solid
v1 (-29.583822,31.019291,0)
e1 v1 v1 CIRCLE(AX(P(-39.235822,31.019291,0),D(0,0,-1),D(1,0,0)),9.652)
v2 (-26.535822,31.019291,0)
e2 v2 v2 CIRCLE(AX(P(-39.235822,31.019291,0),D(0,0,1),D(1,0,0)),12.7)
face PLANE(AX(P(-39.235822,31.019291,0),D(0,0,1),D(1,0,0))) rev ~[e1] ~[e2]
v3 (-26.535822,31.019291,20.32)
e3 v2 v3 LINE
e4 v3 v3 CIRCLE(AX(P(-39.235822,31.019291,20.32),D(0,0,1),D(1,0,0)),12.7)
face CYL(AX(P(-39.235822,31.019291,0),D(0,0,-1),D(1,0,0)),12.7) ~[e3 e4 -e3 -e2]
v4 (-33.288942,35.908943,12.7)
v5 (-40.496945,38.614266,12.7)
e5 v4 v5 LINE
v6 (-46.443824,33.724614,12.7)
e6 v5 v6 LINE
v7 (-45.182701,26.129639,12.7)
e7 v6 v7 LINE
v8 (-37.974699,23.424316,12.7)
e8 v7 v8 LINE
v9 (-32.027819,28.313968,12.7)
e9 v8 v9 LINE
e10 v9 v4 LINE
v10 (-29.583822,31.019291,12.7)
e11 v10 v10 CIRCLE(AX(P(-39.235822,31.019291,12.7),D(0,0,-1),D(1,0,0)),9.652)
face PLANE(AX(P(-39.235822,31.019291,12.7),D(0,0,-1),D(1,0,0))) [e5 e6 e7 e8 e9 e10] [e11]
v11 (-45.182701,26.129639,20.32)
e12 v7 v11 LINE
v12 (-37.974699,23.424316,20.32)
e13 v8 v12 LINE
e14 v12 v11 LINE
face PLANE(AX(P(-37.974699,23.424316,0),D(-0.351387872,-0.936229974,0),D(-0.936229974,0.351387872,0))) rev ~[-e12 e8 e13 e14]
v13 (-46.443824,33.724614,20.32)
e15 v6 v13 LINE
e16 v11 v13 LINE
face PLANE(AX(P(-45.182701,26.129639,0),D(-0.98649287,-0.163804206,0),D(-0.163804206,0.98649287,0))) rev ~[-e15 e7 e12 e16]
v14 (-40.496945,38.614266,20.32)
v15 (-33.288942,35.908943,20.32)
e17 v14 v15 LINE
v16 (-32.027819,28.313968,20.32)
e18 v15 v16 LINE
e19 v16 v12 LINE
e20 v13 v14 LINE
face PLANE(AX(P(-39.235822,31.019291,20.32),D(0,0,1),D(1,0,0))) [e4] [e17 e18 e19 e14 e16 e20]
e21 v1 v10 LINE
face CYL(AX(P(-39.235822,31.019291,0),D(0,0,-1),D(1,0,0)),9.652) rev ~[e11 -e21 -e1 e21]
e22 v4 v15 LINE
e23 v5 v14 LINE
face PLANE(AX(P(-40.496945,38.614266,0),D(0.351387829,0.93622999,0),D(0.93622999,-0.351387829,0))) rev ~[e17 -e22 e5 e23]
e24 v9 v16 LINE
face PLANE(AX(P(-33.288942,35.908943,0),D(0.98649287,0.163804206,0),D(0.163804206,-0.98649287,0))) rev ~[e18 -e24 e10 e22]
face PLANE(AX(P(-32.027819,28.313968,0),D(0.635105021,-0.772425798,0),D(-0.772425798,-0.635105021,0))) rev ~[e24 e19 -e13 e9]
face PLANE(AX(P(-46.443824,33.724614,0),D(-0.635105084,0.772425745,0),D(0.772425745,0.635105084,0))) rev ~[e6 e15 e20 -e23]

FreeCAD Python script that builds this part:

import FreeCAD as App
import Part
import Sketcher
Q = App.Units.Quantity


def add_polygon(sketch, points):
    """Adds a closed chain of lines whose ends are joined by coincident constraints."""
    first, n = sketch.GeometryCount, len(points)
    for a, b in zip(points, points[1:] + points[:1]):
        sketch.addGeometry(Part.LineSegment(App.Vector(*a, 0), App.Vector(*b, 0)), False)
    for i in range(n):
        sketch.addConstraint(Sketcher.Constraint("Coincident", first + i, 2, first + (i + 1) % n, 1))

doc = App.newDocument("Part")
body = doc.addObject("PartDesign::Body", "Body")

# Sketch on XY plane
sketch1 = body.newObject("Sketcher::SketchObject", "Sketch")
sketch1.AttachmentSupport = (doc.getObject("XY_Plane"), [""])
sketch1.MapMode = "FlatFace"
sketch1.addGeometry([
    Part.Circle(App.Vector(-39, 31, 0), App.Vector(0, 0, 1), 13),
    Part.Circle(App.Vector(-39, 31, 0), App.Vector(0, 0, 1), 10),
], False)
sketch1.addConstraint([
    Sketcher.Constraint("Coincident", 1, 3, 0, 3),
    Sketcher.Constraint("Diameter", 0, Q("1 in")),
    Sketcher.Constraint("Diameter", 1, Q("0.8 in")),
    Sketcher.Constraint("DistanceY", -1, 1, 0, 3, 31.019291),
    Sketcher.Constraint("DistanceX", 0, 3, -1, 1, 39.235822),
])
pad1 = body.newObject("PartDesign::Pad", "Pad")
pad1.Profile = sketch1
pad1.Length = Q("0.8 in")

# Sketch on XY plane
sketch2 = body.newObject("Sketcher::SketchObject", "Sketch001")
sketch2.AttachmentSupport = (doc.getObject("XY_Plane"), [""])
sketch2.MapMode = "FlatFace"
sketch2.addGeometry(Part.Circle(App.Vector(-39, 31, 0), App.Vector(0, 0, 1), 10), False)  # 0
add_polygon(sketch2, [(-46, 34), (-40, 39), (-33, 36), (-32, 28), (-38, 23), (-45, 26)])  # lines 1-6
sketch2.addConstraint([
    Sketcher.Constraint("Parallel", 1, 4),
    Sketcher.Constraint("Parallel", 2, 5),
    Sketcher.Constraint("Parallel", 3, 6),
    Sketcher.Constraint("Equal", 1, 2),
    Sketcher.Constraint("Equal", 2, 3),
    Sketcher.Constraint("Equal", 3, 4),
    Sketcher.Constraint("Diameter", 0, Q("0.8 in")),
    Sketcher.Constraint("DistanceX", 4, 2, -1, 1, 37.974699),
    Sketcher.Constraint("DistanceX", 5, 2, -1, 1, 45.182701),
    Sketcher.Constraint("DistanceY", 3, 2, 1, 2, 10.300298),
    Sketcher.Constraint("DistanceY", -1, 1, 0, 3, 31.019291),
    Sketcher.Constraint("DistanceX", 3, 2, -1, 1, 32.027819),
    Sketcher.Constraint("DistanceY", -1, 1, 5, 2, 26.129639),
    Sketcher.Constraint("DistanceX", 0, 3, 2, 2, 5.94688),
    Sketcher.Constraint("DistanceY", 4, 2, 3, 2, 4.889652),
])
pad2 = body.newObject("PartDesign::Pad", "Pad001")
pad2.Profile = sketch2
pad2.Length = Q("0.8 in")

# Sketch on XY plane
sketch3 = body.newObject("Sketcher::SketchObject", "Sketch002")
sketch3.AttachmentSupport = (doc.getObject("XY_Plane"), [""])
sketch3.MapMode = "FlatFace"
sketch3.addGeometry(Part.Circle(App.Vector(-39, 31, 0), App.Vector(0, 0, 1), 10), False)
sketch3.addConstraint([
    Sketcher.Constraint("Diameter", 0, Q("0.76 in")),
    Sketcher.Constraint("DistanceY", -1, 1, 0, 3, 31.019291),
    Sketcher.Constraint("DistanceX", 0, 3, -1, 1, 39.235822),
])
pocket1 = body.newObject("PartDesign::Pocket", "Pocket")
pocket1.Profile = sketch3
pocket1.Length = Q("0.5 in")
pocket1.Reversed = True

doc.recompute()
